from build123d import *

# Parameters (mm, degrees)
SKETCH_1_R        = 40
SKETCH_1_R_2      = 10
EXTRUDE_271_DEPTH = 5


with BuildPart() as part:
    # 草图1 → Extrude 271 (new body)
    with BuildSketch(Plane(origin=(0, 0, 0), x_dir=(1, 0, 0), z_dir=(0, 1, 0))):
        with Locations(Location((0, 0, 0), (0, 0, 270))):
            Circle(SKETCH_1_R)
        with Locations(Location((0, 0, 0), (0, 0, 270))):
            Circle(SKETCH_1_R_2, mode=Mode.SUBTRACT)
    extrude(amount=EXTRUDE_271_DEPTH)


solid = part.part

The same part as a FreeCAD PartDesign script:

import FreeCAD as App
import Part
import Sketcher
Q = App.Units.Quantity

doc = App.newDocument("Part")
body = doc.addObject("PartDesign::Body", "Body")

# Sketch on XZ plane
sketch1 = body.newObject("Sketcher::SketchObject", "Sketch")
sketch1.AttachmentSupport = (doc.getObject("XZ_Plane"), [""])
sketch1.MapMode = "FlatFace"
sketch1.addGeometry(Part.Circle(App.Vector(0, 0, 0), App.Vector(0, 0, 1), 40), False)
sketch1.addGeometry(Part.Circle(App.Vector(0, 0, 0), App.Vector(0, 0, 1), 10), False)
sketch1.addConstraint(Sketcher.Constraint("Coincident", 0, 3, -1, 1))
sketch1.addConstraint(Sketcher.Constraint("Coincident", 1, 3, -1, 1))
sketch1.addConstraint(Sketcher.Constraint("Diameter", 0, Q("80 mm")))
sketch1.addConstraint(Sketcher.Constraint("Diameter", 1, Q("20 mm")))
pad1 = body.newObject("PartDesign::Pad", "Pad")
pad1.Profile = sketch1
pad1.Length = 5
pad1.Reversed = True

doc.recompute()
